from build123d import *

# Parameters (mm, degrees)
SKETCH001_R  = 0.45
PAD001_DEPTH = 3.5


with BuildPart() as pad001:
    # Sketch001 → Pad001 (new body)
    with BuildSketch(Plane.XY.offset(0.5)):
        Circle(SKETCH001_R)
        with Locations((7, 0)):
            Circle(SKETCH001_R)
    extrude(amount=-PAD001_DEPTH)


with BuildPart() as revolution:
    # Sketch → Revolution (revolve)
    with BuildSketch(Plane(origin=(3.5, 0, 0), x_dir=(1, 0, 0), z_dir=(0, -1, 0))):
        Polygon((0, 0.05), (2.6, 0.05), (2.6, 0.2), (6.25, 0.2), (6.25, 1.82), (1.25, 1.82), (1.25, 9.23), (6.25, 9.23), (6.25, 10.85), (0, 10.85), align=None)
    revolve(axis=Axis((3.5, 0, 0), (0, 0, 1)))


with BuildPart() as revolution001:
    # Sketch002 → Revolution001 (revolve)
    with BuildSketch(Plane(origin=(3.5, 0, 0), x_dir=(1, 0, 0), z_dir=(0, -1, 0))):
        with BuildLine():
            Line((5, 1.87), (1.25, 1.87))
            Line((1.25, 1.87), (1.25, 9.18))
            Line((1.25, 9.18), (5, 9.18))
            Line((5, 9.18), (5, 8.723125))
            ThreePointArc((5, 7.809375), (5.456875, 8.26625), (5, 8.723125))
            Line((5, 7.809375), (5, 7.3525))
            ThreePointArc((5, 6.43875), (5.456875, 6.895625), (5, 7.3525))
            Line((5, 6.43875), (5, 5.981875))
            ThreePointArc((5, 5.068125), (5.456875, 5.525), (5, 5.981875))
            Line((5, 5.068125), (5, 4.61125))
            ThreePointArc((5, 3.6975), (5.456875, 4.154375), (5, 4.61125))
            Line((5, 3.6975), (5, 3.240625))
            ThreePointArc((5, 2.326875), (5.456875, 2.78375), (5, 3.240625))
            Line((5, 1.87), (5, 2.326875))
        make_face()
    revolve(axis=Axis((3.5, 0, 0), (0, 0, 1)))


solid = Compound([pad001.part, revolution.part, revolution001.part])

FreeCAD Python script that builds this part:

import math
import FreeCAD as App
import Part
import Sketcher
from FreeCAD import Vector
Q = App.Units.Quantity


def add_polygon(sketch, points):
    """Adds a closed chain of lines whose ends are joined by coincident constraints."""
    first, n = sketch.GeometryCount, len(points)
    for a, b in zip(points, points[1:] + points[:1]):
        sketch.addGeometry(Part.LineSegment(App.Vector(*a, 0), App.Vector(*b, 0)), False)
    for i in range(n):
        sketch.addConstraint(Sketcher.Constraint("Coincident", first + i, 2, first + (i + 1) % n, 1))

doc = App.newDocument("Part")
body = doc.addObject("PartDesign::Body", "Body")
body.AllowCompound = True

# Sketch on XY plane
sketch1 = body.newObject("Sketcher::SketchObject", "Sketch")
sketch1.AttachmentSupport = (doc.getObject("XY_Plane"), [""])
sketch1.MapMode = "FlatFace"
sketch1.AttachmentOffset = App.Placement(Vector(0, 0, 0.5), App.Rotation())
sketch1.addGeometry([
    Part.Circle(Vector(0, 0, 0), Vector(0, 0, 1), 0.45),
    Part.Circle(Vector(7, 0, 0), Vector(0, 0, 1), 0.45),
], False)
sketch1.addConstraint([
    Sketcher.Constraint("Coincident", 0, 3, -1, 1),
    Sketcher.Constraint("Equal", 0, 1),
    Sketcher.Constraint("PointOnObject", 1, 3, -1),
    Sketcher.Constraint("Diameter", 0, Q("0.9 mm")),
    Sketcher.Constraint("DistanceX", -1, 1, 1, 3, Q("7 mm")),
])
pad1 = body.newObject("PartDesign::Pad", "Pad")
pad1.Profile = sketch1
pad1.Length = 3.5
pad1.Reversed = True
body2 = doc.addObject("PartDesign::Body", "Body001")

# Sketch on XZ plane
sketch2 = body2.newObject("Sketcher::SketchObject", "Sketch001")
sketch2.AttachmentSupport = (doc.getObject("XZ_Plane001"), [""])
sketch2.MapMode = "FlatFace"
add_polygon(sketch2, [(3.5, 0.05), (6.1, 0.05), (6.1, 0.2), (9.75, 0.2), (9.75, 1.82), (4.75, 1.82), (4.75, 9.23), (9.75, 9.23), (9.75, 10.85), (3.5, 10.85)])  # lines 0-9
sketch2.addGeometry(Part.LineSegment(Vector(3.5, 0.05, 0), Vector(3.5, 10.85, 0)), True)  # axis
sketch2.addConstraint([
    Sketcher.Constraint("Horizontal", 0),
    Sketcher.Constraint("Vertical", 1),
    Sketcher.Constraint("Horizontal", 2),
    Sketcher.Constraint("Vertical", 3),
    Sketcher.Constraint("Horizontal", 4),
    Sketcher.Constraint("Vertical", 5),
    Sketcher.Constraint("Horizontal", 6),
    Sketcher.Constraint("Vertical", 7),
    Sketcher.Constraint("Horizontal", 8),
    Sketcher.Constraint("Vertical", 9),
    Sketcher.Constraint("Vertical", 10),
    Sketcher.Constraint("Coincident", 10, 1, 9, 2),
    Sketcher.Constraint("Horizontal", 7, 2, 10, 2),
    Sketcher.Constraint("Vertical", 3, 2, 6, 2),
    Sketcher.Constraint("Equal", 3, 7),
    Sketcher.Constraint("DistanceX", 4, 2, 4, 1, Q("5 mm")),
    Sketcher.Constraint("DistanceX", 0, 1, 0, 2, Q("2.6 mm")),
    Sketcher.Constraint("DistanceY", 9, 2, 9, 1, Q("10.8 mm")),
    Sketcher.Constraint("DistanceX", 2, 1, 2, 2, Q("3.65 mm")),
    Sketcher.Constraint("DistanceY", 1, 1, 1, 2, Q("0.15 mm")),
    Sketcher.Constraint("DistanceY", 3, 1, 3, 2, Q("1.62 mm")),
    Sketcher.Constraint("DistanceX", -1, 1, 0, 2, Q("6.1 mm")),
    Sketcher.Constraint("DistanceY", -1, 1, 1, 2, Q("0.2 mm")),
])
revolution = body2.newObject("PartDesign::Revolution", "Revolution")
revolution.Profile = sketch2
revolution.ReferenceAxis = (sketch2, ["Axis0"])
revolution.Angle = 360
body3 = doc.addObject("PartDesign::Body", "Body002")

# Sketch on XZ plane
sketch3 = body3.newObject("Sketcher::SketchObject", "Sketch002")
sketch3.AttachmentSupport = (doc.getObject("XZ_Plane002"), [""])
sketch3.MapMode = "FlatFace"
sketch3.addGeometry([
    Part.LineSegment(Vector(4.75, 1.87, 0), Vector(8.5, 1.87, 0)),  # 0
    Part.LineSegment(Vector(8.5, 1.87, 0), Vector(8.5, 2.326875, 0)),  # 1
    Part.ArcOfCircle(Part.Circle(Vector(8.5, 2.78375, 0), Vector(0, 0, 1), 0.456875), math.radians(-90), math.radians(90)),  # 2
    Part.LineSegment(Vector(8.5, 3.240625, 0), Vector(8.5, 3.6975, 0)),  # 3
    Part.ArcOfCircle(Part.Circle(Vector(8.5, 4.154375, 0), Vector(0, 0, 1), 0.456875), math.radians(-90), math.radians(90)),  # 4
    Part.LineSegment(Vector(8.5, 4.61125, 0), Vector(8.5, 5.068125, 0)),  # 5
    Part.ArcOfCircle(Part.Circle(Vector(8.5, 5.525, 0), Vector(0, 0, 1), 0.456875), math.radians(-90), math.radians(90)),  # 6
    Part.LineSegment(Vector(8.5, 5.981875, 0), Vector(8.5, 6.43875, 0)),  # 7
    Part.ArcOfCircle(Part.Circle(Vector(8.5, 6.895625, 0), Vector(0, 0, 1), 0.456875), math.radians(-90), math.radians(90)),  # 8
    Part.LineSegment(Vector(8.5, 7.3525, 0), Vector(8.5, 7.809375, 0)),  # 9
    Part.ArcOfCircle(Part.Circle(Vector(8.5, 8.26625, 0), Vector(0, 0, 1), 0.456875), math.radians(-90), math.radians(90)),  # 10
    Part.LineSegment(Vector(8.5, 8.723125, 0), Vector(8.5, 9.18, 0)),  # 11
    Part.LineSegment(Vector(8.5, 9.18, 0), Vector(4.75, 9.18, 0)),  # 12
    Part.LineSegment(Vector(4.75, 9.18, 0), Vector(4.75, 1.87, 0)),  # 13
], False)
sketch3.addGeometry(Part.LineSegment(Vector(3.5, 1.87, 0), Vector(3.5, 9.18, 0)), True)  # axis
sketch3.addConstraint([
    Sketcher.Constraint("Coincident", 0, 2, 1, 1),
    Sketcher.Constraint("Coincident", 1, 2, 2, 1),
    Sketcher.Constraint("Coincident", 2, 2, 3, 1),
    Sketcher.Constraint("Coincident", 3, 2, 4, 1),
    Sketcher.Constraint("Coincident", 4, 2, 5, 1),
    Sketcher.Constraint("Coincident", 5, 2, 6, 1),
    Sketcher.Constraint("Coincident", 6, 2, 7, 1),
    Sketcher.Constraint("Coincident", 7, 2, 8, 1),
    Sketcher.Constraint("Coincident", 8, 2, 9, 1),
    Sketcher.Constraint("Coincident", 9, 2, 10, 1),
    Sketcher.Constraint("Coincident", 10, 2, 11, 1),
    Sketcher.Constraint("Coincident", 11, 2, 12, 1),
    Sketcher.Constraint("Coincident", 12, 2, 13, 1),
    Sketcher.Constraint("Coincident", 13, 2, 0, 1),
    Sketcher.Constraint("Horizontal", 0),
    Sketcher.Constraint("Vertical", 1),
    Sketcher.Constraint("Vertical", 3),
    Sketcher.Constraint("Vertical", 5),
    Sketcher.Constraint("Vertical", 7),
    Sketcher.Constraint("Vertical", 9),
    Sketcher.Constraint("Vertical", 11),
    Sketcher.Constraint("Horizontal", 12),
    Sketcher.Constraint("Vertical", 13),
    Sketcher.Constraint("Vertical", 14),
    Sketcher.Constraint("Equal", 2, 4),
    Sketcher.Constraint("Equal", 4, 6),
    Sketcher.Constraint("Equal", 6, 8),
    Sketcher.Constraint("Equal", 8, 10),
    Sketcher.Constraint("Horizontal", 13, 2, 14, 1),
    Sketcher.Constraint("Horizontal", 12, 2, 14, 2),
    Sketcher.Constraint("Vertical", 2, 3, 4, 3),
    Sketcher.Constraint("Vertical", 4, 3, 6, 3),
    Sketcher.Constraint("Vertical", 6, 3, 8, 3),
    Sketcher.Constraint("Vertical", 8, 3, 10, 3),
    Sketcher.Constraint("Vertical", 10, 3, 0, 2),
    Sketcher.Constraint("Vertical", 1, 2, 2, 2),
    Sketcher.Constraint("Vertical", 3, 2, 4, 2),
    Sketcher.Constraint("Vertical", 5, 2, 6, 2),
    Sketcher.Constraint("Vertical", 7, 2, 8, 2),
    Sketcher.Constraint("Vertical", 9, 2, 10, 2),
    Sketcher.Constraint("Equal", 1, 3),
    Sketcher.Constraint("Equal", 3, 5),
    Sketcher.Constraint("Equal", 5, 7),
    Sketcher.Constraint("Equal", 7, 9),
    Sketcher.Constraint("Equal", 9, 11),
    Sketcher.Constraint("DistanceX", 14, 1, 0, 2, Q("5 mm")),
    Sketcher.Constraint("DistanceX", 0, 1, 0, 2, Q("3.75 mm")),
    Sketcher.Constraint("DistanceY", 13, 2, 13, 1, Q("7.31 mm")),
    Sketcher.Constraint("DistanceX", -1, 1, 2, 3, Q("8.5 mm")),
    Sketcher.Constraint("DistanceY", -1, 1, 0, 2, Q("1.87 mm")),
    Sketcher.Constraint("Radius", 2, Q("0.456875 mm")),
])
revolution2 = body3.newObject("PartDesign::Revolution", "Revolution001")
revolution2.Profile = sketch3
revolution2.ReferenceAxis = (sketch3, ["Axis0"])
revolution2.Angle = 360

doc.recompute()
